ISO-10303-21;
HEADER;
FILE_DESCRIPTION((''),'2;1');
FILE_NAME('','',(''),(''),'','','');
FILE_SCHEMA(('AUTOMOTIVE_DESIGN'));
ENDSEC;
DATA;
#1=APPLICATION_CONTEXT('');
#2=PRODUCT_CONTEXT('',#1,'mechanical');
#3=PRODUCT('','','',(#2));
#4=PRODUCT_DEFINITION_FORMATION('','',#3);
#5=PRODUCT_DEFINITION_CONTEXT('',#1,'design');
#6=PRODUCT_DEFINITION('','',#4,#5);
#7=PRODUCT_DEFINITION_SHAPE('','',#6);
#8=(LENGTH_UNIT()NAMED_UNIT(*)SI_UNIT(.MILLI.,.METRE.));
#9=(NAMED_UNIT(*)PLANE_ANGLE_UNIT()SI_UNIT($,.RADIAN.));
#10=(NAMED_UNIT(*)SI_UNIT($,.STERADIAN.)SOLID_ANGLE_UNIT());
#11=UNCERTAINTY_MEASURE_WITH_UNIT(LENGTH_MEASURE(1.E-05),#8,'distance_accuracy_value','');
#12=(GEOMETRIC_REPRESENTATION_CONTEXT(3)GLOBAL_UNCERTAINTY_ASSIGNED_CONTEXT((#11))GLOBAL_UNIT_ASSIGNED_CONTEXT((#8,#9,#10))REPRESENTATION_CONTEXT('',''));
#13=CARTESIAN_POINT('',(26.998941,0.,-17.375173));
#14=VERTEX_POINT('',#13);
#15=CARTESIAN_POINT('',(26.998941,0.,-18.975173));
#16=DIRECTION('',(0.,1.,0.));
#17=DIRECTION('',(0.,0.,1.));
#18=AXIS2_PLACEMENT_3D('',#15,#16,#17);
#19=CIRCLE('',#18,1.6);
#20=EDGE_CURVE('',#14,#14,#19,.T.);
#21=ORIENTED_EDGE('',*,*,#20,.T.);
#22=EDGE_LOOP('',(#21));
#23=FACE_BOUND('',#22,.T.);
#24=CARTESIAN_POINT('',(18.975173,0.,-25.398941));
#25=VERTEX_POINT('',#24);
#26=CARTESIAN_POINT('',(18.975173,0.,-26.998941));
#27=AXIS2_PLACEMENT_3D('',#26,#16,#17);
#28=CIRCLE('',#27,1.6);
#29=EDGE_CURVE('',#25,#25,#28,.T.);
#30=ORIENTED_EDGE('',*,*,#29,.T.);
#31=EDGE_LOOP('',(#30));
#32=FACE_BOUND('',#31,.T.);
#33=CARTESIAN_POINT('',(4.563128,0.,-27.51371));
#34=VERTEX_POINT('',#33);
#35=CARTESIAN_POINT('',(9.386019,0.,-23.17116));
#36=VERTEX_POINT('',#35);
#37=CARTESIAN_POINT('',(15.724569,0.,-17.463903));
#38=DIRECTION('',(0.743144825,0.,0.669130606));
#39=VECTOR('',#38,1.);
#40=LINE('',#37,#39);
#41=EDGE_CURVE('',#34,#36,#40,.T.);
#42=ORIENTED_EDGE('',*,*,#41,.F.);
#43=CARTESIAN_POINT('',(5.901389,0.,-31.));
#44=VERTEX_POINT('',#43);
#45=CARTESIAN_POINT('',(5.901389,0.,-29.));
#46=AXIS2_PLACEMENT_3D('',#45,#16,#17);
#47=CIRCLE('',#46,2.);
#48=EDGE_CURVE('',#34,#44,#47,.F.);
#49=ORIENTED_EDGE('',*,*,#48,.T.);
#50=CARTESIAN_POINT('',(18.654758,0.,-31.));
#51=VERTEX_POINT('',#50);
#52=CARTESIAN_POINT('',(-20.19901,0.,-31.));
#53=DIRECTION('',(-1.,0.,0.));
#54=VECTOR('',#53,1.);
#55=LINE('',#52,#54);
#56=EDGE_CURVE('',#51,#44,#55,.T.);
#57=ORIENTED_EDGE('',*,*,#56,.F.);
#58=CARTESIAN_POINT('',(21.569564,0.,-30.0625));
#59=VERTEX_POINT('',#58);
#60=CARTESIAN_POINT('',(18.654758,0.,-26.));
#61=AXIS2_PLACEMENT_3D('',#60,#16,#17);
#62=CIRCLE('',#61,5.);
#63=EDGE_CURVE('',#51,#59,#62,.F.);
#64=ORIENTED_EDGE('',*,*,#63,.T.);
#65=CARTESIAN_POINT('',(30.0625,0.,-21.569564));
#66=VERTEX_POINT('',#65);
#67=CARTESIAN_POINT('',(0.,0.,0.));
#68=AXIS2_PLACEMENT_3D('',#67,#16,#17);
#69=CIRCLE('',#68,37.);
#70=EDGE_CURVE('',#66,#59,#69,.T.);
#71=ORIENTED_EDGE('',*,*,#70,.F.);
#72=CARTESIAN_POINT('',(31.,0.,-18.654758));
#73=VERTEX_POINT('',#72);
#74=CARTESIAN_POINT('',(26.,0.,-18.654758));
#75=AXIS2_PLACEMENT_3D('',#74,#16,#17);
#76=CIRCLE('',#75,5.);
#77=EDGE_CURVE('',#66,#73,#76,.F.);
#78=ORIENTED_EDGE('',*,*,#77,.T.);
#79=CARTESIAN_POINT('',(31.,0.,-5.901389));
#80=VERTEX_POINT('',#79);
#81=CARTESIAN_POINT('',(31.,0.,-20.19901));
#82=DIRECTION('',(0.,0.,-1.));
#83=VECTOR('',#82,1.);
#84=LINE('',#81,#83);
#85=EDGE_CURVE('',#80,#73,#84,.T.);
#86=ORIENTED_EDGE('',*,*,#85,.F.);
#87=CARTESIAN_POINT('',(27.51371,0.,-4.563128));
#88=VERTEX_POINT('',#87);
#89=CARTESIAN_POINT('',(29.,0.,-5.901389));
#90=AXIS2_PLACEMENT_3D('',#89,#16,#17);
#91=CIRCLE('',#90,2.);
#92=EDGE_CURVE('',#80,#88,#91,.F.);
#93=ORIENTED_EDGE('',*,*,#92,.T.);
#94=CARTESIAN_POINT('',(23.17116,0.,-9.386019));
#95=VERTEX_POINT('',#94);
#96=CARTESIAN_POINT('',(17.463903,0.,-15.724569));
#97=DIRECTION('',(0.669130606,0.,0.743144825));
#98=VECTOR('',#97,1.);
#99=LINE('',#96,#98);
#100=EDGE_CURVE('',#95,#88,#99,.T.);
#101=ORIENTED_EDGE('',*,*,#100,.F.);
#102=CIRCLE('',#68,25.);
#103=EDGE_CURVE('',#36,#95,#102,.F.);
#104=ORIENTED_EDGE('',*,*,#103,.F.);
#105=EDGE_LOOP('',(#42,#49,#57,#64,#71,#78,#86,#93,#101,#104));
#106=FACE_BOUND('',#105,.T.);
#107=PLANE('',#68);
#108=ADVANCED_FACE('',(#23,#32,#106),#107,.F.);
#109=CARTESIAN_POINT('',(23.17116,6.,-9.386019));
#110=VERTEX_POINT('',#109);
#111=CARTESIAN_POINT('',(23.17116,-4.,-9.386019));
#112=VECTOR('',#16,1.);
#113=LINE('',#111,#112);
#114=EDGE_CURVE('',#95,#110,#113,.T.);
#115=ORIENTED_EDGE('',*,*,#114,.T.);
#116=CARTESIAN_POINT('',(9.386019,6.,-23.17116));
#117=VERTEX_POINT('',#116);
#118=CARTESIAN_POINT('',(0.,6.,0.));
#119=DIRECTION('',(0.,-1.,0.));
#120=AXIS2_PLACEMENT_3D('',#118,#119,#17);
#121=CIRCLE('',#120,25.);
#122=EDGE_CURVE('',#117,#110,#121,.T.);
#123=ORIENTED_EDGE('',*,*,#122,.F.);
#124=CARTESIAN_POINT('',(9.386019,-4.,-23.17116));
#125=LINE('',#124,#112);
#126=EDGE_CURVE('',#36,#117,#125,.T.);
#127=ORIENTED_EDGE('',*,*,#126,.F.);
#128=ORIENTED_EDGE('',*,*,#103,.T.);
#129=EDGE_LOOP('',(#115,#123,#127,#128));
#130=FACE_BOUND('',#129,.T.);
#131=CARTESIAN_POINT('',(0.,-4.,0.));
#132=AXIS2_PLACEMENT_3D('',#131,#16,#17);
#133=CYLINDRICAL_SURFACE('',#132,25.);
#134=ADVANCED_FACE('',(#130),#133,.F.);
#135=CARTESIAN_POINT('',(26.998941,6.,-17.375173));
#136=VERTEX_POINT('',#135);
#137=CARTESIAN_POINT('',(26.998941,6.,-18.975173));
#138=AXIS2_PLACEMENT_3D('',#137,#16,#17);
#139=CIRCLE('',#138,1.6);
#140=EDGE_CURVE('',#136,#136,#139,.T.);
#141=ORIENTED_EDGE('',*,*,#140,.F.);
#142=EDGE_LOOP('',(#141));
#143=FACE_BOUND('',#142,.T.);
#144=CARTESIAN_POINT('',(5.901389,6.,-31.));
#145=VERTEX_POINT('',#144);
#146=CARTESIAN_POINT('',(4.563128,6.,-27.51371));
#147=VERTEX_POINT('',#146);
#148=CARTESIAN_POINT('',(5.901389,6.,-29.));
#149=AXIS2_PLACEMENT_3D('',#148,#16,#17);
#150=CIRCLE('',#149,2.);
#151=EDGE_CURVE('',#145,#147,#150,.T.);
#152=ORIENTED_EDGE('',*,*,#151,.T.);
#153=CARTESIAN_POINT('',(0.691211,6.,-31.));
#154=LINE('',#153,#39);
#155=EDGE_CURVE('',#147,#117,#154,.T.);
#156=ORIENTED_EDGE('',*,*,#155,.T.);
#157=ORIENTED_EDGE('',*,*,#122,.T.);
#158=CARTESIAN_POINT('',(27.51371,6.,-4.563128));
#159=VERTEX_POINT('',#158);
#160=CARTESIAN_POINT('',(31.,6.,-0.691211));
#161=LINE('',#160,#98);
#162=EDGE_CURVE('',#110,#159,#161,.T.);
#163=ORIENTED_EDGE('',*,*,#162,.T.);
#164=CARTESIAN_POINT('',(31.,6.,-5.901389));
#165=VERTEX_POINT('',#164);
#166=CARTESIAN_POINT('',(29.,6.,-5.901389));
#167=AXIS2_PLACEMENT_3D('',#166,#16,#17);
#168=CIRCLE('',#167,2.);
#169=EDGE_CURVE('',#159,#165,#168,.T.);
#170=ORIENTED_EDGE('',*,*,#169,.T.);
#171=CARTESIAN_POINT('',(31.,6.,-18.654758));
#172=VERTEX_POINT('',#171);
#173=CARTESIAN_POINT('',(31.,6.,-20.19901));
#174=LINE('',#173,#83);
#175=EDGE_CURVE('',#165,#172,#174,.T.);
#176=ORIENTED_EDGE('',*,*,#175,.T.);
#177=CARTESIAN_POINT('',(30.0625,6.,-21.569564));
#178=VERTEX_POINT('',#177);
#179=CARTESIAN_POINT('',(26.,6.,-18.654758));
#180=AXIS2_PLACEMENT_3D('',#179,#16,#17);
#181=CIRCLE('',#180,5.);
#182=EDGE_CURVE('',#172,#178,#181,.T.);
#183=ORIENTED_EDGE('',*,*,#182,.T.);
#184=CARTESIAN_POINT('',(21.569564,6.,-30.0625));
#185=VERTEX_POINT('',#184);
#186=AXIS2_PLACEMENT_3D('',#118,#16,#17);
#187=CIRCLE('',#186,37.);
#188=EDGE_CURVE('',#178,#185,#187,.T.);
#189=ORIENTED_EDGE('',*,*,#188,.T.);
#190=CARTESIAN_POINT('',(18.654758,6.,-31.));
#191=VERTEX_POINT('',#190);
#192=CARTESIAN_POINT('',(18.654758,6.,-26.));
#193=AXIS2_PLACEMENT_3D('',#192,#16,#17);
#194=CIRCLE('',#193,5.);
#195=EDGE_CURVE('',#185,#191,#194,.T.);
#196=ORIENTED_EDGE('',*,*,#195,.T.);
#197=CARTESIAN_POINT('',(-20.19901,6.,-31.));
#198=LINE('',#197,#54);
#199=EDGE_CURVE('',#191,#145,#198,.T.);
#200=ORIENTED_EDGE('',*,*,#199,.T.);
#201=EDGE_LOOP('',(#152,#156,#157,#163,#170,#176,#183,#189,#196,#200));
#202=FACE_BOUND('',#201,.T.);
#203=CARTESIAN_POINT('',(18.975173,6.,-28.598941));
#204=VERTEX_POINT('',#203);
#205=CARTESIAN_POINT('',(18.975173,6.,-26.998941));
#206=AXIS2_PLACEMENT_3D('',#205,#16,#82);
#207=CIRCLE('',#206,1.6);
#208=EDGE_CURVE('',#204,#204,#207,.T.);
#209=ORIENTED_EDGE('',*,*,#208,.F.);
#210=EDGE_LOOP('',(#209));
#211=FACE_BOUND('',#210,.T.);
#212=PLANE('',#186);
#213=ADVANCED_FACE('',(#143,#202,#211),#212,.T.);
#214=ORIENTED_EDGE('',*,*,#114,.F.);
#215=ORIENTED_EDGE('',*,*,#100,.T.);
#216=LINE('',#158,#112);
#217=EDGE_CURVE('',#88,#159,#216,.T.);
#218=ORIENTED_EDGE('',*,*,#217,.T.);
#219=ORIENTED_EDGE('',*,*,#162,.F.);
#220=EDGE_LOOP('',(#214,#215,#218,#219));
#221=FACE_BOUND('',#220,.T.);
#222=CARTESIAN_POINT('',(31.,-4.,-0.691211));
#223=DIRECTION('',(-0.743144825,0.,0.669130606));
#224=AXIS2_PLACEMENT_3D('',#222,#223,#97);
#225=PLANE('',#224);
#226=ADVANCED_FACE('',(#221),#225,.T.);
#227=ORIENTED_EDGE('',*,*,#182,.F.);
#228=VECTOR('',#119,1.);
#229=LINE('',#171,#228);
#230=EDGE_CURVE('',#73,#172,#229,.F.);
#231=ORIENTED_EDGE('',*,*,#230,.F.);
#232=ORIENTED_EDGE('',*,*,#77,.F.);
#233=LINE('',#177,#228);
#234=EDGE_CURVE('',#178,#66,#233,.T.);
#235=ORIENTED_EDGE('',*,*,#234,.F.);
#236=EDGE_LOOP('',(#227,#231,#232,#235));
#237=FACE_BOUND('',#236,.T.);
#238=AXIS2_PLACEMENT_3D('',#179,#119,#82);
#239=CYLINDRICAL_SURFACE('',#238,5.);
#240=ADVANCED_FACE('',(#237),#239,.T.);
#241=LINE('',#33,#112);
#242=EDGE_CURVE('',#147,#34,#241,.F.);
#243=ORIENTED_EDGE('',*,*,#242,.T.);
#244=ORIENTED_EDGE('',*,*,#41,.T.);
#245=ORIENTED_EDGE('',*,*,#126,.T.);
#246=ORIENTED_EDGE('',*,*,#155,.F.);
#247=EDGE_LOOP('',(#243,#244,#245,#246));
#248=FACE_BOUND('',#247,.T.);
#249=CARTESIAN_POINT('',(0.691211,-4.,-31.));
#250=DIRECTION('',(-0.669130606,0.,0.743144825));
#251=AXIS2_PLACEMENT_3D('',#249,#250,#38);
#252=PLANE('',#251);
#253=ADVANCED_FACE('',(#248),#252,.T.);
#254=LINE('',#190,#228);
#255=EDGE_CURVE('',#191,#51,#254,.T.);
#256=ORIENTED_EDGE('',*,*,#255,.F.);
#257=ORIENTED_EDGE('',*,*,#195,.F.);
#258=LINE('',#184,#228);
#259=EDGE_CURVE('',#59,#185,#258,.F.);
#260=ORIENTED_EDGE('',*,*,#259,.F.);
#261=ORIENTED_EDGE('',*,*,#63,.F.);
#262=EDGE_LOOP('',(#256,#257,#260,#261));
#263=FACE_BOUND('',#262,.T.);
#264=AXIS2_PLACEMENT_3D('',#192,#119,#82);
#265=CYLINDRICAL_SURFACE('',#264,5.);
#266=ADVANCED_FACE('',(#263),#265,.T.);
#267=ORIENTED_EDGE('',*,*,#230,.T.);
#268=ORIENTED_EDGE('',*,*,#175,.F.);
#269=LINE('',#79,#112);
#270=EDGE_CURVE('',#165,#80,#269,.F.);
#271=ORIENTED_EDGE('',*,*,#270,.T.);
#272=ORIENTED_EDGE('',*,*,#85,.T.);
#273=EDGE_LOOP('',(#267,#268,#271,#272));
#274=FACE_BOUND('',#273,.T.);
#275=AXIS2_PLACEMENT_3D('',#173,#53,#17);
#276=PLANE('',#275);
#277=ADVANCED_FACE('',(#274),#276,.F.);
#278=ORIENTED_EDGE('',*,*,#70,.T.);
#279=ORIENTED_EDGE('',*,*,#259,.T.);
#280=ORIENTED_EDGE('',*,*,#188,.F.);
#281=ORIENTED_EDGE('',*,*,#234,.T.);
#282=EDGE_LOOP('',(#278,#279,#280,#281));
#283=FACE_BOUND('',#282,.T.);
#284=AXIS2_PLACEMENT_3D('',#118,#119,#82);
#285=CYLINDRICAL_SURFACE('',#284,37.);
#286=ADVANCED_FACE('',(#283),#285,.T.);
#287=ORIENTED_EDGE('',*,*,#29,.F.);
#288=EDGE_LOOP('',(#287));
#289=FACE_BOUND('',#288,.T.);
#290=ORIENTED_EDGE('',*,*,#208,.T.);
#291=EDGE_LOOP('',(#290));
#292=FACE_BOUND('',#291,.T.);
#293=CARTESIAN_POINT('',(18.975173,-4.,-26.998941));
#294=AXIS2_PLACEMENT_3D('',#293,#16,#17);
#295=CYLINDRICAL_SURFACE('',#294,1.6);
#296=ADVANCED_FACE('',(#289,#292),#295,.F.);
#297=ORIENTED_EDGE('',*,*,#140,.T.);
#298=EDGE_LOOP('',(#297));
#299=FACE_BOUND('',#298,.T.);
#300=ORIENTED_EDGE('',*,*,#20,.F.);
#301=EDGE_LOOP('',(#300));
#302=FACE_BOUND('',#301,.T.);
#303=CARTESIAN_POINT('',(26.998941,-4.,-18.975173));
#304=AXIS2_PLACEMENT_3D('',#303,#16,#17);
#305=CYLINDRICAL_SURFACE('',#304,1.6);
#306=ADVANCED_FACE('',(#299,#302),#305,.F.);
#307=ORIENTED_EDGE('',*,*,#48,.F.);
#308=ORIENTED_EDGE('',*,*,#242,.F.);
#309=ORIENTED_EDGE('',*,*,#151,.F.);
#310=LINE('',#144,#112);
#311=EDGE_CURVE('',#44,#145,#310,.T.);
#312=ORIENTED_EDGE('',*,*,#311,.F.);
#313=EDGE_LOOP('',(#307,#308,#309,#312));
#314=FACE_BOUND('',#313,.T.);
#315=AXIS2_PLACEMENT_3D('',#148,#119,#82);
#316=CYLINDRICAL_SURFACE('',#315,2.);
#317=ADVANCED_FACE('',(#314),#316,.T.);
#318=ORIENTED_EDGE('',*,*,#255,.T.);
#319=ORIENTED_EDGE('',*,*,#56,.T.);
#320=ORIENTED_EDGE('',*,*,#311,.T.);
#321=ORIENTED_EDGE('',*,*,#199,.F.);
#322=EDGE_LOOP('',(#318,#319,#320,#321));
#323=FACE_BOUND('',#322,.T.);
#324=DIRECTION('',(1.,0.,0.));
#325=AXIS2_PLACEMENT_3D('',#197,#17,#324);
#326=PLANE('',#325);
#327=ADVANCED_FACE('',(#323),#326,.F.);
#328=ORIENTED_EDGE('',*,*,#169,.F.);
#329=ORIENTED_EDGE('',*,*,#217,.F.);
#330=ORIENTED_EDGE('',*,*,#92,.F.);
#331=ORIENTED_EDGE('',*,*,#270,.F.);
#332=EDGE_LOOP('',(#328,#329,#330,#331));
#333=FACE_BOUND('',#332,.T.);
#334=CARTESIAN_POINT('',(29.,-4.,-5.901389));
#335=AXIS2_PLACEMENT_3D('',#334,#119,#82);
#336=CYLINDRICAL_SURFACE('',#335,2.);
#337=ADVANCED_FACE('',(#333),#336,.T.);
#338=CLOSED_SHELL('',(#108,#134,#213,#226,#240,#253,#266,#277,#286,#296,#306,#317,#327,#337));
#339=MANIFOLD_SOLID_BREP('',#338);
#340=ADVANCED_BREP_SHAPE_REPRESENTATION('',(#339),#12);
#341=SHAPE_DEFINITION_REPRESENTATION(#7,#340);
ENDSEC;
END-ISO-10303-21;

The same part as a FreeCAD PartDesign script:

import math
import FreeCAD as App
import Part
import Sketcher

V = App.Vector
Q = App.Units.Quantity


def edges_at(feature, points):
    """Names of the edges that pass closest to the given points."""
    edges = feature.Shape.Edges
    near = lambda p: min(range(len(edges)), key=lambda i: edges[i].distToShape(Part.Vertex(*p))[0])
    return sorted({f"Edge{near(p) + 1}" for p in points})

doc = App.newDocument("Part")
body = doc.addObject("PartDesign::Body", "Body")

sketch1 = body.newObject("Sketcher::SketchObject", "Sketch")
sketch1.AttachmentSupport = (doc.getObject("XZ_Plane"), [""])
sketch1.MapMode = "FlatFace"
sketch1.addGeometry([
    Part.LineSegment(V(20.19901, -31, 0), V(-20.19901, -31, 0)),
    Part.ArcOfCircle(Part.Circle(V(0, 0, 0), V(0, 0, 1), 37), math.radians(33.0875), math.radians(236.9125)),
    Part.LineSegment(V(31, 20.19901, 0), V(31, -20.19901, 0)),
    Part.ArcOfCircle(Part.Circle(V(0, 0, 0), V(0, 0, 1), 37), math.radians(-56.9125), math.radians(-33.0875)),
], False)
sketch1.addConstraint([
    Sketcher.Constraint("Coincident", 0, 2, 1, 2),
    Sketcher.Constraint("Coincident", 1, 1, 2, 1),
    Sketcher.Constraint("Coincident", 2, 2, 3, 2),
    Sketcher.Constraint("Coincident", 3, 1, 0, 1),
    Sketcher.Constraint("Horizontal", 0),
    Sketcher.Constraint("Vertical", 2),
    Sketcher.Constraint("Coincident", 1, 3, -1, 1),
    Sketcher.Constraint("Coincident", 3, 3, -1, 1),
    Sketcher.Constraint("Equal", 1, 3),
    Sketcher.Constraint("Equal", 0, 2),
    Sketcher.Constraint("Radius", 1, 37.0),
    Sketcher.Constraint("DistanceY", 0, 2, -1, 1, 31.0),
])
pad1 = body.newObject("PartDesign::Pad", "Pad")
pad1.Profile = sketch1
pad1.Length = 6
pad1.Reversed = True

sketch2 = body.newObject("Sketcher::SketchObject", "Sketch001")
sketch2.AttachmentSupport = (doc.getObject("XZ_Plane"), [""])
sketch2.MapMode = "FlatFace"
sketch2.AttachmentOffset = App.Placement(V(0, 0, -6), App.Rotation())
sketch2.addGeometry([
    Part.Circle(V(26.998941, -18.975173, 0), V(0, 0, 1), 1.6),
    Part.Circle(V(18.975173, -26.998941, 0), V(0, 0, 1), 1.6),
], False)
sketch2.addConstraint([
    Sketcher.Constraint("Equal", 0, 1),
    Sketcher.Constraint("Diameter", 0, 3.2),
    Sketcher.Constraint("DistanceX", -1, 1, 0, 3, 26.998941),
    Sketcher.Constraint("DistanceY", 1, 3, -1, 1, 26.998941),
    Sketcher.Constraint("DistanceY", 0, 3, -1, 1, 18.975173),
    Sketcher.Constraint("DistanceX", -1, 1, 1, 3, 18.975173),
])
pocket1 = body.newObject("PartDesign::Pocket", "Pocket")
pocket1.Profile = sketch2
pocket1.Length = 10
pocket1.Reversed = True

sketch3 = body.newObject("Sketcher::SketchObject", "Sketch002")
sketch3.AttachmentSupport = (doc.getObject("XZ_Plane"), [""])
sketch3.MapMode = "FlatFace"
sketch3.AttachmentOffset = App.Placement(V(0, 0, -6), App.Rotation())
sketch3.addGeometry([
    Part.LineSegment(V(-47.635, -41.635, 0), V(-47.635, 47.635, 0)),
    Part.LineSegment(V(-47.635, 47.635, 0), V(41.635, 47.635, 0)),
    Part.LineSegment(V(41.635, 47.635, 0), V(41.635, -41.635, 0)),
    Part.LineSegment(V(41.635, -41.635, 0), V(-47.635, -41.635, 0)),
    Part.LineSegment(V(9.386019, -23.17116, 0), V(0.691211, -31, 0)),
    Part.LineSegment(V(0.691211, -31, 0), V(20.19901, -31, 0)),
    Part.ArcOfCircle(Part.Circle(V(0, 0, 0), V(0, 0, 1), 37), math.radians(-56.9125), math.radians(-33.0875)),
    Part.LineSegment(V(31, -20.19901, 0), V(31, -0.691211, 0)),
    Part.LineSegment(V(31, -0.691211, 0), V(23.17116, -9.386019, 0)),
    Part.ArcOfCircle(Part.Circle(V(0, 0, 0), V(0, 0, 1), 25), math.radians(-67.948444), math.radians(-22.051556)),
], False)
sketch3.addConstraint([
    Sketcher.Constraint("Coincident", 0, 2, 1, 1),
    Sketcher.Constraint("Coincident", 1, 2, 2, 1),
    Sketcher.Constraint("Coincident", 2, 2, 3, 1),
    Sketcher.Constraint("Coincident", 3, 2, 0, 1),
    Sketcher.Constraint("Coincident", 4, 2, 5, 1),
    Sketcher.Constraint("Coincident", 5, 2, 6, 1),
    Sketcher.Constraint("Coincident", 6, 2, 7, 1),
    Sketcher.Constraint("Coincident", 7, 2, 8, 1),
    Sketcher.Constraint("Coincident", 8, 2, 9, 2),
    Sketcher.Constraint("Coincident", 9, 1, 4, 1),
    Sketcher.Constraint("Vertical", 0),
    Sketcher.Constraint("Horizontal", 1),
    Sketcher.Constraint("Vertical", 2),
    Sketcher.Constraint("Horizontal", 3),
    Sketcher.Constraint("Horizontal", 5),
    Sketcher.Constraint("Vertical", 7),
    Sketcher.Constraint("Coincident", 6, 3, -1, 1),
    Sketcher.Constraint("Coincident", 9, 3, -1, 1),
    Sketcher.Constraint("Equal", 3, 0),
    Sketcher.Constraint("Equal", 5, 7),
    Sketcher.Constraint("Equal", 4, 8),
    Sketcher.Constraint("Radius", 6, 37.0),
    Sketcher.Constraint("Radius", 9, 25.0),
    Sketcher.Constraint("Angle", 4, Q("-138 deg")),
    Sketcher.Constraint("Angle", 8, Q("-132 deg")),
    Sketcher.Constraint("DistanceY", 4, 2, -1, 1, 31.0),
    Sketcher.Constraint("DistanceX", 1, 1, 1, 2, 89.27),
    Sketcher.Constraint("DistanceX", 5, 1, 5, 2, 19.507799),
    Sketcher.Constraint("DistanceX", 0, 2, -1, 1, 47.635),
    Sketcher.Constraint("DistanceY", -1, 1, 0, 2, 47.635),
])
pocket2 = body.newObject("PartDesign::Pocket", "Pocket001")
pocket2.Profile = sketch3
pocket2.Length = 10
pocket2.Reversed = True
doc.recompute()

fillet = body.newObject("PartDesign::Fillet", "Fillet")
fillet.Base = (pocket2, edges_at(pocket2, [(20.199, 3, -31), (31, 3, -20.199)]))
fillet.Radius = 5
doc.recompute()

fillet2 = body.newObject("PartDesign::Fillet", "Fillet001")
fillet2.Base = (fillet, edges_at(fillet, [(31, 3, -0.691), (0.691, 3, -31)]))
fillet2.Radius = 2

doc.recompute()
